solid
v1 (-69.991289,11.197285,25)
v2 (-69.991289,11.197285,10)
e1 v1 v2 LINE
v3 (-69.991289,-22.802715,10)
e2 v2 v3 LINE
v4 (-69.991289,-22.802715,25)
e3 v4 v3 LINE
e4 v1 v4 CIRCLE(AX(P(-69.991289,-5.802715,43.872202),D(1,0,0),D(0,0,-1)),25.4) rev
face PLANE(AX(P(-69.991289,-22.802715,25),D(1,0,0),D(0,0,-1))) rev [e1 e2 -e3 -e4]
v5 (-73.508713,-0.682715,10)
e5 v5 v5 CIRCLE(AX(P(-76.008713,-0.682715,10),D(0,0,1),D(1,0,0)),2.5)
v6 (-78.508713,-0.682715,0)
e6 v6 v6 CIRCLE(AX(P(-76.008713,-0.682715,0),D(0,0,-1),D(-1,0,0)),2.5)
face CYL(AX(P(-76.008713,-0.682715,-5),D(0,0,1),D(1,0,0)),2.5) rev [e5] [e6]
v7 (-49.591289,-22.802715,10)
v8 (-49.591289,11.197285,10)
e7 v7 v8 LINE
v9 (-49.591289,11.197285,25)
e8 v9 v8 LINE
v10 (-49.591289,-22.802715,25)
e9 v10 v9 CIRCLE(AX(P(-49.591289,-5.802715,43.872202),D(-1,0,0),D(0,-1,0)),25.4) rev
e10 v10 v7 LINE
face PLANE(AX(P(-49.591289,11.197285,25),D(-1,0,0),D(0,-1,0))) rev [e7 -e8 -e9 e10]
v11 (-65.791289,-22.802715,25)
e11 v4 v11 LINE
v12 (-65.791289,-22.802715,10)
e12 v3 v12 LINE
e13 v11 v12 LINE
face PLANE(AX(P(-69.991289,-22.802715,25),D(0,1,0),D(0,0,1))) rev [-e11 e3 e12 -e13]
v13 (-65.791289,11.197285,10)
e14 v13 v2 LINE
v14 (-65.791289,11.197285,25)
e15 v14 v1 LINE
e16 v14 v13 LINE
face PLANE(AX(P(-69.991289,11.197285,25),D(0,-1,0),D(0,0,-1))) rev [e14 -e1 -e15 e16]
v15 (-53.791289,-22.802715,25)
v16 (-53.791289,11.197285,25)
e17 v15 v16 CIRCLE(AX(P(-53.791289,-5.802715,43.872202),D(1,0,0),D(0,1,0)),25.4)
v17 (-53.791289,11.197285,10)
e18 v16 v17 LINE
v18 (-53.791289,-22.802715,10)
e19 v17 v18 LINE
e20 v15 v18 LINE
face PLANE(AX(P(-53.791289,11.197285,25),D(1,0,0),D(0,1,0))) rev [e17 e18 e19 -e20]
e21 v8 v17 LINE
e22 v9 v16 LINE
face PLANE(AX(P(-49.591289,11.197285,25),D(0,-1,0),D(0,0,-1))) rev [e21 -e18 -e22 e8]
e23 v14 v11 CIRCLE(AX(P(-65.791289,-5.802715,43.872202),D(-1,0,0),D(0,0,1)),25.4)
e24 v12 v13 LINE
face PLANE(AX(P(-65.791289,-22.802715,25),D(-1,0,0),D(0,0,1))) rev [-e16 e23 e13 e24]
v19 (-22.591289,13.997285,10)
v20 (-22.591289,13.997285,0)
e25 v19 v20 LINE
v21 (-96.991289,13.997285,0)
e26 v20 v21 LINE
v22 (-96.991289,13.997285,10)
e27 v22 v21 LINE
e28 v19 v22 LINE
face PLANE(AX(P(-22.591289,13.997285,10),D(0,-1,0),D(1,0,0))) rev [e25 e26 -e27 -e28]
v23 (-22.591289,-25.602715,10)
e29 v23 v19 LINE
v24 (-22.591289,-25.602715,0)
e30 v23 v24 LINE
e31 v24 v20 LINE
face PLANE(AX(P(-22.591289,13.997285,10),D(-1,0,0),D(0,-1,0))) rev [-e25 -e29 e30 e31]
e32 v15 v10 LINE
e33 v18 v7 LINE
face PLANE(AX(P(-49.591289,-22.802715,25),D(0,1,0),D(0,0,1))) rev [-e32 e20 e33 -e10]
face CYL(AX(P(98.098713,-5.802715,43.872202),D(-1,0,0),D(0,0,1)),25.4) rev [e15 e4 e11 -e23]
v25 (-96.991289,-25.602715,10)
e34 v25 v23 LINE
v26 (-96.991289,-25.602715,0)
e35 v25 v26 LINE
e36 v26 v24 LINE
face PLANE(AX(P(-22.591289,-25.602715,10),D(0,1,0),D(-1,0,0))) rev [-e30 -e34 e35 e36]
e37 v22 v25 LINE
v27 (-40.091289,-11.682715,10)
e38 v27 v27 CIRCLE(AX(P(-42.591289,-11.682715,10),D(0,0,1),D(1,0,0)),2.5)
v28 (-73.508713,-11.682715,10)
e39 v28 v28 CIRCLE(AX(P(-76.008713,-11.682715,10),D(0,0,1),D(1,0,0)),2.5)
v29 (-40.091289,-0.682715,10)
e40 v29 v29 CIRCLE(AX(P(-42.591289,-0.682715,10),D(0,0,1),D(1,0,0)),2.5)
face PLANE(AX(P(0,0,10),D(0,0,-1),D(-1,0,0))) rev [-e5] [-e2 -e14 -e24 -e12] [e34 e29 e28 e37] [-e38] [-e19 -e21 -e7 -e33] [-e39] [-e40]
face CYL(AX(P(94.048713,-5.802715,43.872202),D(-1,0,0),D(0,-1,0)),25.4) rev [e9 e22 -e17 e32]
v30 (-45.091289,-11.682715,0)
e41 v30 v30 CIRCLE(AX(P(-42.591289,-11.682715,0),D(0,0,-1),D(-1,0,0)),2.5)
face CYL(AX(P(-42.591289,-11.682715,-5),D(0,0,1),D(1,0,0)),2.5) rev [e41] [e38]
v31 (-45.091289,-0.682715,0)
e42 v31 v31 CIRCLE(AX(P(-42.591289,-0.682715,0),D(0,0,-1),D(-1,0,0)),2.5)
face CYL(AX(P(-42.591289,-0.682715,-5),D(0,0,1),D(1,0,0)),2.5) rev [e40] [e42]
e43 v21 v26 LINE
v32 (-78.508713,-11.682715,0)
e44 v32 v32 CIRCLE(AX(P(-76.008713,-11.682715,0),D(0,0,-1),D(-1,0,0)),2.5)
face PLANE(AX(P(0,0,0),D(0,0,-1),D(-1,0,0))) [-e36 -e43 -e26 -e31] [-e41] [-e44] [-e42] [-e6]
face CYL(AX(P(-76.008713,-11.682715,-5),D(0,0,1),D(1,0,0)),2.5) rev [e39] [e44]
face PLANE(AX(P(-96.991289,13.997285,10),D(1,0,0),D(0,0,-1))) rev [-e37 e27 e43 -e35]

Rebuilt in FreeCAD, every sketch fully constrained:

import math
import FreeCAD as App
import Part
import Sketcher
from FreeCAD import Vector
Q = App.Units.Quantity

doc = App.newDocument("Part")
body = doc.addObject("PartDesign::Body", "Body")

# Sketch on XY plane
sketch1 = doc.addObject("Sketcher::SketchObject", "Sketch")
body.addObject(sketch1)
sketch1.AttachmentSupport = (doc.XY_Plane, [""])
sketch1.MapMode = "FlatFace"
sketch1.addGeometry([
    Part.LineSegment(Vector(-97, 14, 0), Vector(-97, -26, 0)),
    Part.LineSegment(Vector(-97, -26, 0), Vector(-23, -26, 0)),
    Part.LineSegment(Vector(-23, -26, 0), Vector(-23, 14, 0)),
    Part.LineSegment(Vector(-23, 14, 0), Vector(-97, 14, 0)),
], False)
sketch1.addConstraint([
    Sketcher.Constraint("Coincident", 0, 2, 1, 1),
    Sketcher.Constraint("Coincident", 1, 2, 2, 1),
    Sketcher.Constraint("Coincident", 2, 2, 3, 1),
    Sketcher.Constraint("Coincident", 3, 2, 0, 1),
    Sketcher.Constraint("Vertical", 0),
    Sketcher.Constraint("Horizontal", 1),
    Sketcher.Constraint("Vertical", 2),
    Sketcher.Constraint("Horizontal", 3),
    Sketcher.Constraint("DistanceX", 1, 1, 1, 2, Q("74.4 mm")),
    Sketcher.Constraint("DistanceY", 0, 2, 0, 1, Q("39.6 mm")),
    Sketcher.Constraint("DistanceX", 0, 2, -1, 1, Q("96.991289 mm")),
    Sketcher.Constraint("DistanceY", 0, 2, -1, 1, Q("25.602715 mm")),
])
pad1 = doc.addObject("PartDesign::Pad", "Pad")
body.addObject(pad1)
pad1.Profile = sketch1
pad1.Length = 10

# Sketch on XY plane
sketch2 = doc.addObject("Sketcher::SketchObject", "Sketch001")
body.addObject(sketch2)
sketch2.AttachmentSupport = (doc.XY_Plane, [""])
sketch2.MapMode = "FlatFace"
sketch2.AttachmentOffset = App.Placement(Vector(0, 0, 10), App.Rotation())
sketch2.addGeometry([
    Part.LineSegment(Vector(-70, 11.2, 0), Vector(-70, -22.8, 0)),  # 0
    Part.LineSegment(Vector(-70, -22.8, 0), Vector(-65.8, -22.8, 0)),  # 1
    Part.LineSegment(Vector(-65.8, -22.8, 0), Vector(-65.8, 11.2, 0)),  # 2
    Part.LineSegment(Vector(-65.8, 11.2, 0), Vector(-70, 11.2, 0)),  # 3
    Part.LineSegment(Vector(-49.6, 11.2, 0), Vector(-53.8, 11.2, 0)),  # 4
    Part.LineSegment(Vector(-53.8, 11.2, 0), Vector(-53.8, -22.8, 0)),  # 5
    Part.LineSegment(Vector(-53.8, -22.8, 0), Vector(-49.6, -22.8, 0)),  # 6
    Part.LineSegment(Vector(-49.6, -22.8, 0), Vector(-49.6, 11.2, 0)),  # 7
], False)
sketch2.addConstraint([
    Sketcher.Constraint("Coincident", 0, 2, 1, 1),
    Sketcher.Constraint("Coincident", 1, 2, 2, 1),
    Sketcher.Constraint("Coincident", 2, 2, 3, 1),
    Sketcher.Constraint("Coincident", 3, 2, 0, 1),
    Sketcher.Constraint("Coincident", 4, 2, 5, 1),
    Sketcher.Constraint("Coincident", 5, 2, 6, 1),
    Sketcher.Constraint("Coincident", 6, 2, 7, 1),
    Sketcher.Constraint("Coincident", 7, 2, 4, 1),
    Sketcher.Constraint("Vertical", 0),
    Sketcher.Constraint("Horizontal", 1),
    Sketcher.Constraint("Vertical", 2),
    Sketcher.Constraint("Horizontal", 3),
    Sketcher.Constraint("Horizontal", 4),
    Sketcher.Constraint("Vertical", 5),
    Sketcher.Constraint("Horizontal", 6),
    Sketcher.Constraint("Vertical", 7),
    Sketcher.Constraint("Horizontal", 3, 2, 4, 2),
    Sketcher.Constraint("Horizontal", 1, 2, 5, 2),
    Sketcher.Constraint("Equal", 3, 4),
    Sketcher.Constraint("DistanceY", 0, 2, 0, 1, Q("34 mm")),
    Sketcher.Constraint("DistanceX", 1, 1, 1, 2, Q("4.2 mm")),
    Sketcher.Constraint("DistanceX", 2, 2, 4, 2, Q("12 mm")),
    Sketcher.Constraint("DistanceX", 0, 2, -1, 1, Q("69.991289 mm")),
    Sketcher.Constraint("DistanceY", 0, 2, -1, 1, Q("22.802715 mm")),
])
pad2 = doc.addObject("PartDesign::Pad", "Pad001")
body.addObject(pad2)
pad2.Profile = sketch2
pad2.Length = 15

# Sketch on YZ plane
sketch3 = doc.addObject("Sketcher::SketchObject", "Sketch002")
body.addObject(sketch3)
sketch3.AttachmentSupport = (doc.YZ_Plane, [""])
sketch3.MapMode = "FlatFace"
sketch3.AttachmentOffset = App.Placement(Vector(0, 0, -49.591289), App.Rotation())
sketch3.addGeometry([
    Part.LineSegment(Vector(11, 25, 0), Vector(85, 91, 0)),  # 0
    Part.LineSegment(Vector(85, 91, 0), Vector(85, 289, 0)),  # 1
    Part.LineSegment(Vector(85, 289, 0), Vector(-96, 289, 0)),  # 2
    Part.LineSegment(Vector(-96, 289, 0), Vector(-96, 91, 0)),  # 3
    Part.LineSegment(Vector(-96, 91, 0), Vector(-23, 25, 0)),  # 4
    Part.ArcOfCircle(Part.Circle(Vector(-6, 44, 0), Vector(0, 0, 1), 25), math.radians(-132), math.radians(-48)),  # 5
], False)
sketch3.addConstraint([
    Sketcher.Constraint("Coincident", 0, 2, 1, 1),
    Sketcher.Constraint("Coincident", 1, 2, 2, 1),
    Sketcher.Constraint("Coincident", 2, 2, 3, 1),
    Sketcher.Constraint("Coincident", 3, 2, 4, 1),
    Sketcher.Constraint("Tangent", 4, 2, 5, 1),
    Sketcher.Constraint("Tangent", 5, 2, 0, 1),
    Sketcher.Constraint("Vertical", 1),
    Sketcher.Constraint("Horizontal", 2),
    Sketcher.Constraint("Vertical", 3),
    Sketcher.Constraint("Horizontal", 0, 2, 3, 2),
    Sketcher.Constraint("Horizontal", 4, 2, 5, 2),
    Sketcher.Constraint("Radius", 5, Q("25.4 mm")),
    Sketcher.Constraint("DistanceY", -1, 1, 4, 2, Q("25 mm")),
    Sketcher.Constraint("DistanceX", 4, 2, 5, 3, Q("17 mm")),
    Sketcher.Constraint("DistanceY", 1, 1, 1, 2, Q("197.954601 mm")),
    Sketcher.Constraint("Distance", 0, Q("98.9773 mm")),
    Sketcher.Constraint("DistanceX", 5, 3, -1, 1, Q("5.802715 mm")),
])
pocket1 = doc.addObject("PartDesign::Pocket", "Pocket")
body.addObject(pocket1)
pocket1.Profile = sketch3
pocket1.Type = "TwoLengths"
pocket1.Length = 60.390732
pocket1.Length2 = 8
pocket1.Reversed = True

# Sketch on YZ plane
sketch4 = doc.addObject("Sketcher::SketchObject", "Sketch003")
body.addObject(sketch4)
sketch4.AttachmentSupport = (doc.YZ_Plane, [""])
sketch4.MapMode = "FlatFace"
sketch4.AttachmentOffset = App.Placement(Vector(0, 0, -65.791289), App.Rotation())
sketch4.addGeometry([
    Part.LineSegment(Vector(-96, 91, 0), Vector(-23, 25, 0)),  # 0
    Part.ArcOfCircle(Part.Circle(Vector(-6, 44, 0), Vector(0, 0, 1), 25), math.radians(-132), math.radians(-48)),  # 1
    Part.LineSegment(Vector(11, 25, 0), Vector(85, 91, 0)),  # 2
    Part.LineSegment(Vector(85, 91, 0), Vector(85, 289, 0)),  # 3
    Part.LineSegment(Vector(85, 289, 0), Vector(-96, 289, 0)),  # 4
    Part.LineSegment(Vector(-96, 289, 0), Vector(-96, 91, 0)),  # 5
], False)
sketch4.addConstraint([
    Sketcher.Constraint("Tangent", 0, 2, 1, 1),
    Sketcher.Constraint("Tangent", 1, 2, 2, 1),
    Sketcher.Constraint("Coincident", 2, 2, 3, 1),
    Sketcher.Constraint("Coincident", 3, 2, 4, 1),
    Sketcher.Constraint("Coincident", 4, 2, 5, 1),
    Sketcher.Constraint("Coincident", 5, 2, 0, 1),
    Sketcher.Constraint("Vertical", 3),
    Sketcher.Constraint("Horizontal", 4),
    Sketcher.Constraint("Vertical", 5),
    Sketcher.Constraint("Horizontal", 0, 2, 1, 2),
    Sketcher.Constraint("Horizontal", 2, 2, 5, 2),
    Sketcher.Constraint("Radius", 1, Q("25.4 mm")),
    Sketcher.Constraint("DistanceY", -1, 1, 0, 2, Q("25 mm")),
    Sketcher.Constraint("DistanceX", 0, 2, 1, 3, Q("17 mm")),
    Sketcher.Constraint("DistanceY", 3, 1, 3, 2, Q("197.954601 mm")),
    Sketcher.Constraint("Distance", 0, Q("98.9773 mm")),
    Sketcher.Constraint("DistanceX", 1, 3, -1, 1, Q("5.802715 mm")),
])
pocket2 = doc.addObject("PartDesign::Pocket", "Pocket001")
body.addObject(pocket2)
pocket2.Profile = sketch4
pocket2.Type = "ThroughAll"
pocket2.Midplane = True

# Sketch on XY plane
sketch5 = doc.addObject("Sketcher::SketchObject", "Sketch004")
body.addObject(sketch5)
sketch5.AttachmentSupport = (doc.XY_Plane, [""])
sketch5.MapMode = "FlatFace"
sketch5.AttachmentOffset = App.Placement(Vector(0, 0, 10), App.Rotation())
sketch5.addGeometry([
    Part.Circle(Vector(-42.6, -11.7, 0), Vector(0, 0, 1), 2.5),
    Part.Circle(Vector(-42.6, -0.7, 0), Vector(0, 0, 1), 2.5),
    Part.Circle(Vector(-76, -0.7, 0), Vector(0, 0, 1), 2.5),
    Part.Circle(Vector(-76, -11.7, 0), Vector(0, 0, 1), 2.5),
], False)
sketch5.addConstraint([
    Sketcher.Constraint("Equal", 0, 1),
    Sketcher.Constraint("Equal", 1, 2),
    Sketcher.Constraint("Equal", 2, 3),
    Sketcher.Constraint("Horizontal", 1, 3, 2, 3),
    Sketcher.Constraint("Horizontal", 0, 3, 3, 3),
    Sketcher.Constraint("Vertical", 0, 3, 1, 3),
    Sketcher.Constraint("Vertical", 2, 3, 3, 3),
    Sketcher.Constraint("Diameter", 0, Q("5 mm")),
    Sketcher.Constraint("DistanceY", 0, 3, 1, 3, Q("11 mm")),
    Sketcher.Constraint("DistanceX", 0, 3, -1, 1, Q("42.591289 mm")),
    Sketcher.Constraint("DistanceY", 0, 3, -1, 1, Q("11.682715 mm")),
    Sketcher.Constraint("DistanceX", 2, 3, -1, 1, Q("76.008713 mm")),
])
pocket3 = doc.addObject("PartDesign::Pocket", "Pocket002")
body.addObject(pocket3)
pocket3.Profile = sketch5
pocket3.Length = 15

doc.recompute()
